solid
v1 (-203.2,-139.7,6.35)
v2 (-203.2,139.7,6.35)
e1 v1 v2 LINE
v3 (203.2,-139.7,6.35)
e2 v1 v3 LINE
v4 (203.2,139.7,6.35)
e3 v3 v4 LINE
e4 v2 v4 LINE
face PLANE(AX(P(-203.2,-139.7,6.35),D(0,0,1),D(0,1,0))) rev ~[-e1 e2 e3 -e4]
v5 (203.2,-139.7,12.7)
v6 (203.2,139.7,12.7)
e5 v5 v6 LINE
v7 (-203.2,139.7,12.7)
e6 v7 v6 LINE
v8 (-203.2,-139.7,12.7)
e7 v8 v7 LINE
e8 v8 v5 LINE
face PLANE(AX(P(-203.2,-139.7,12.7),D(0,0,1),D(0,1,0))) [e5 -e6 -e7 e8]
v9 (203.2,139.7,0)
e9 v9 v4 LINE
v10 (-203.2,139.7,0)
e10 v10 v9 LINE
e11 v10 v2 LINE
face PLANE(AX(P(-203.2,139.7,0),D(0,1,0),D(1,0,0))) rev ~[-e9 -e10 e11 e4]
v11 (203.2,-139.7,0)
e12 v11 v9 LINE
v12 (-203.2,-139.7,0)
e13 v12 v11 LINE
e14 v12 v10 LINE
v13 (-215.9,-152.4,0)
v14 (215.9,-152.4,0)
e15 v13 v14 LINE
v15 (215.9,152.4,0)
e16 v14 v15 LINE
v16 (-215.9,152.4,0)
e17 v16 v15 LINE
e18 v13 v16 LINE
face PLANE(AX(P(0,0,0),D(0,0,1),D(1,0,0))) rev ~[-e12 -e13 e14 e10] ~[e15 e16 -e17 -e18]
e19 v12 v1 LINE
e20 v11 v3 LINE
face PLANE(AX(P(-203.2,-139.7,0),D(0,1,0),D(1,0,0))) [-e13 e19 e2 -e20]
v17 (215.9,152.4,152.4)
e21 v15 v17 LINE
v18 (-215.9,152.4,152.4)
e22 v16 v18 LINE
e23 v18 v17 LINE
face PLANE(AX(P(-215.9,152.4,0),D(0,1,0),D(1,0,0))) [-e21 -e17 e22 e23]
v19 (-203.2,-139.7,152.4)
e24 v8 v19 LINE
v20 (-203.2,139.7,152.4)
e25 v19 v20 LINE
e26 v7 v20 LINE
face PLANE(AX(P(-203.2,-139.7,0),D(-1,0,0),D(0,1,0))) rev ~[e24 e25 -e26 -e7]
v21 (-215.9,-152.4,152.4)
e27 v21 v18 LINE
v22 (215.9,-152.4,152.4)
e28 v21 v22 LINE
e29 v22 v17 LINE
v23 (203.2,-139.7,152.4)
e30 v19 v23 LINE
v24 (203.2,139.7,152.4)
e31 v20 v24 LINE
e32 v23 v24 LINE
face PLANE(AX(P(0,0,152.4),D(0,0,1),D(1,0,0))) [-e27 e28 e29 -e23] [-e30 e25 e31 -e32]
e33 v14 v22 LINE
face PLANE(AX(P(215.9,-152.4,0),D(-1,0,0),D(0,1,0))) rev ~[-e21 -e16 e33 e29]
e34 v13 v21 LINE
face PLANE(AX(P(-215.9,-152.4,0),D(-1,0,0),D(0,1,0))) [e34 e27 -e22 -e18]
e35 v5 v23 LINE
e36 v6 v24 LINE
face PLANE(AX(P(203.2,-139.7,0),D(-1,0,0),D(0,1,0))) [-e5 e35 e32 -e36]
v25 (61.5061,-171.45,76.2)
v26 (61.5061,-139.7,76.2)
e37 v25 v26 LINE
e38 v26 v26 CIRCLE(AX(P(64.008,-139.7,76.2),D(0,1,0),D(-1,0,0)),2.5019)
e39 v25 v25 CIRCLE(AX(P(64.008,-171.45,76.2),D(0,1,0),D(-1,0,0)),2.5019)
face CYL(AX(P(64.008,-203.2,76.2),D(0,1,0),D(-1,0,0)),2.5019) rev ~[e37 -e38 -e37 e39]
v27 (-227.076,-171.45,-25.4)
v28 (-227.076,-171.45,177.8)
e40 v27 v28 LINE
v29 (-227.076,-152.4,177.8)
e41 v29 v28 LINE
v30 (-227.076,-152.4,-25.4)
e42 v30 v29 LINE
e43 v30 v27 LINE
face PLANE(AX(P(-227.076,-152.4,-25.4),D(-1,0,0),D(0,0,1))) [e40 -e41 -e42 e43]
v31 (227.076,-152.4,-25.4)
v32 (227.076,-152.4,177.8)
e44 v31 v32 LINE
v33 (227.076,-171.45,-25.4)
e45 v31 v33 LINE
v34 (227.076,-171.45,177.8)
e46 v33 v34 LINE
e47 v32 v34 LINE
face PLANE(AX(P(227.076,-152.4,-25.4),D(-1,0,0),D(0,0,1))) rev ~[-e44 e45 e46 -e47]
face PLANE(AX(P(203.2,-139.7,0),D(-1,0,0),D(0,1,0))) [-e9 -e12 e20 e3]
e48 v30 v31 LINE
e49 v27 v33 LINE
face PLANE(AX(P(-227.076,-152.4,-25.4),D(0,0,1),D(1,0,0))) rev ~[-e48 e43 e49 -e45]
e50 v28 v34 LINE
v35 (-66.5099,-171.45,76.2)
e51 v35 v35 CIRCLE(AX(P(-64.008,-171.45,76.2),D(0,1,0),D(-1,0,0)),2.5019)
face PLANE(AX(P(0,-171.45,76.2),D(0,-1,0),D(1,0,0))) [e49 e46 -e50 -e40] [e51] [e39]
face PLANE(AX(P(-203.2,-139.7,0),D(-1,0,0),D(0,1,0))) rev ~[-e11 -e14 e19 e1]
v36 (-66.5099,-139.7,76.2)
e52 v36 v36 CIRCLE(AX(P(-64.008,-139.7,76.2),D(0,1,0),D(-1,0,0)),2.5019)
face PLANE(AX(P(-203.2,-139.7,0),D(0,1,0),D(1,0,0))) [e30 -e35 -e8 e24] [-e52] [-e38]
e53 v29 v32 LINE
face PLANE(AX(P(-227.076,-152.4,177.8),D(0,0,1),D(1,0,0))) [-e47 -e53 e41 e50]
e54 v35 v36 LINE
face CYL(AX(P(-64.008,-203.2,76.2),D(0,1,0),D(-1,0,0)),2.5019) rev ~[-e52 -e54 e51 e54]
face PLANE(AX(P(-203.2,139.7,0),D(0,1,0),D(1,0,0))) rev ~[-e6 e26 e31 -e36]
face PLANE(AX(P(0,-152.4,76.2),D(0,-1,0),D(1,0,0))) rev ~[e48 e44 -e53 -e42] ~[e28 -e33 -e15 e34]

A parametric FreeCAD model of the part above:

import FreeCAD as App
import Part
import Sketcher

V = App.Vector
Q = App.Units.Quantity


def add_polygon(sketch, points):
    """Adds a closed chain of lines whose ends are joined by coincident constraints."""
    first, n = sketch.GeometryCount, len(points)
    for a, b in zip(points, points[1:] + points[:1]):
        sketch.addGeometry(Part.LineSegment(App.Vector(*a, 0), App.Vector(*b, 0)), False)
    for i in range(n):
        sketch.addConstraint(Sketcher.Constraint("Coincident", first + i, 2, first + (i + 1) % n, 1))

doc = App.newDocument("Part")
body = doc.addObject("PartDesign::Body", "Body")

# Sketch on XY plane
sketch1 = doc.addObject("Sketcher::SketchObject", "Sketch")
body.addObject(sketch1)
sketch1.AttachmentSupport = (doc.XY_Plane, [""])
sketch1.MapMode = "FlatFace"
add_polygon(sketch1, [(-215.9, 152.4), (-215.9, -152.4), (215.9, -152.4), (215.9, 152.4)])  # lines 0-3
add_polygon(sketch1, [(203.2, -139.7), (-203.2, -139.7), (-203.2, 139.7), (203.2, 139.7)])  # lines 4-7
sketch1.addConstraint([
    Sketcher.Constraint("Vertical", 0),
    Sketcher.Constraint("Horizontal", 1),
    Sketcher.Constraint("Vertical", 2),
    Sketcher.Constraint("Horizontal", 3),
    Sketcher.Constraint("Horizontal", 4),
    Sketcher.Constraint("Vertical", 5),
    Sketcher.Constraint("Horizontal", 6),
    Sketcher.Constraint("Vertical", 7),
    Sketcher.Constraint("Symmetric", 0, 2, 2, 2, -1, 1),
    Sketcher.Constraint("Symmetric", 4, 2, 6, 2, -1, 1),
    Sketcher.Constraint("DistanceX", 1, 1, 1, 2, Q("17 in")),
    Sketcher.Constraint("DistanceX", 4, 2, 4, 1, Q("16 in")),
    Sketcher.Constraint("DistanceY", 0, 2, 0, 1, Q("12 in")),
    Sketcher.Constraint("DistanceY", 5, 1, 5, 2, Q("11 in")),
])
pad1 = doc.addObject("PartDesign::Pad", "Pad")
body.addObject(pad1)
pad1.Profile = sketch1
pad1.Length = Q("6 in")

# Sketch on YZ plane
sketch2 = doc.addObject("Sketcher::SketchObject", "Sketch001")
body.addObject(sketch2)
sketch2.AttachmentSupport = (doc.YZ_Plane, [""])
sketch2.MapMode = "FlatFace"
sketch2.AttachmentOffset = App.Placement(V(0, 0, -8 * 25.4), App.Rotation())
add_polygon(sketch2, [(-139.7, 12.7), (-139.7, 6.35), (139.7, 6.35), (139.7, 12.7)])  # lines 0-3
sketch2.addConstraint([
    Sketcher.Constraint("Vertical", 0),
    Sketcher.Constraint("Horizontal", 1),
    Sketcher.Constraint("Vertical", 2),
    Sketcher.Constraint("Horizontal", 3),
    Sketcher.Constraint("DistanceX", 1, 1, 1, 2, Q("11 in")),
    Sketcher.Constraint("DistanceY", 0, 2, 0, 1, Q("0.25 in")),
    Sketcher.Constraint("DistanceX", 0, 2, -1, 1, Q("5.5 in")),
    Sketcher.Constraint("DistanceY", -1, 1, 2, 2, Q("0.5 in")),
])
pad2 = doc.addObject("PartDesign::Pad", "Pad001")
body.addObject(pad2)
pad2.Profile = sketch2
pad2.Type = "UpToLast"

# Sketch on XZ plane
sketch3 = doc.addObject("Sketcher::SketchObject", "Sketch002")
body.addObject(sketch3)
sketch3.AttachmentSupport = (doc.XZ_Plane, [""])
sketch3.MapMode = "FlatFace"
sketch3.AttachmentOffset = App.Placement(V(0, 0, 6 * 25.4), App.Rotation())
add_polygon(sketch3, [(-227.076, 177.8), (-227.076, -25.4), (227.076, -25.4), (227.076, 177.8)])  # lines 0-3
sketch3.addConstraint([
    Sketcher.Constraint("Vertical", 0),
    Sketcher.Constraint("Horizontal", 1),
    Sketcher.Constraint("Vertical", 2),
    Sketcher.Constraint("Horizontal", 3),
    Sketcher.Constraint("DistanceY", 0, 2, 0, 1, Q("8 in")),
    Sketcher.Constraint("DistanceY", 0, 2, -1, 1, Q("1 in")),
    Sketcher.Constraint("DistanceX", 1, 1, 1, 2, Q("17.88 in")),
    Sketcher.Constraint("DistanceX", 0, 2, -1, 1, Q("8.94 in")),
])
pad3 = doc.addObject("PartDesign::Pad", "Pad002")
body.addObject(pad3)
pad3.Profile = sketch3
pad3.Length = Q("0.75 in")

# Sketch on XZ plane
sketch4 = doc.addObject("Sketcher::SketchObject", "Sketch003")
body.addObject(sketch4)
sketch4.AttachmentSupport = (doc.XZ_Plane, [""])
sketch4.MapMode = "FlatFace"
sketch4.AttachmentOffset = App.Placement(V(0, 0, 6.75 * 25.4), App.Rotation())
sketch4.addGeometry([
    Part.Circle(V(-64.008, 76.2, 0), V(0, 0, 1), 2.5019),
    Part.Circle(V(64.008, 76.2, 0), V(0, 0, 1), 2.5019),
], False)
sketch4.addConstraint([
    Sketcher.Constraint("Equal", 0, 1),
    Sketcher.Constraint("Symmetric", 0, 3, 1, 3, -2),
    Sketcher.Constraint("Diameter", 0, Q("0.197 in")),
    Sketcher.Constraint("DistanceY", -1, 1, 0, 3, Q("3 in")),
    Sketcher.Constraint("DistanceX", 0, 3, -1, 1, Q("2.52 in")),
])
doc.recompute()
hole = doc.addObject("PartDesign::Hole", "Hole")
body.addObject(hole)
hole.Profile = sketch4
hole.ThreadType = "None"
hole.Diameter = Q("0.197 in")
hole.DepthType = "Dimension"
hole.Depth = Q("1.25 in")
hole.DrillPoint = "Flat"

doc.recompute()
